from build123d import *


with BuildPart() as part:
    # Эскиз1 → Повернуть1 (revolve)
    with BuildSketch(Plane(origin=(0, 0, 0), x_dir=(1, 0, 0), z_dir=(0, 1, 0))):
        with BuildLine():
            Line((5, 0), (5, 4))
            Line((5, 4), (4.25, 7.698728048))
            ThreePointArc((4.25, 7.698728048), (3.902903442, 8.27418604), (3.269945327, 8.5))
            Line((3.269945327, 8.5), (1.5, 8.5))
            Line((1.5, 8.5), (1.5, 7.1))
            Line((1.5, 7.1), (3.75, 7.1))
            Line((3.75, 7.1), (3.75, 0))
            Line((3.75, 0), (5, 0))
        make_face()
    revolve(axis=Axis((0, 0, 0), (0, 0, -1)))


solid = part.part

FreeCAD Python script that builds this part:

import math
import FreeCAD as App
import Part
import Sketcher
from FreeCAD import Vector
Q = App.Units.Quantity

doc = App.newDocument("Part")
body = doc.addObject("PartDesign::Body", "Body")

# Sketch on XZ plane
sketch1 = body.newObject("Sketcher::SketchObject", "Sketch")
sketch1.AttachmentSupport = (doc.getObject("XZ_Plane"), [""])
sketch1.MapMode = "FlatFace"
sketch1.addGeometry([
    Part.LineSegment(Vector(5, 0, 0), Vector(5, -4, 0)),  # 0
    Part.LineSegment(Vector(5, -4, 0), Vector(4.2, -7.7, 0)),  # 1
    Part.ArcOfCircle(Part.Circle(Vector(3.3, -7.5, 0), Vector(0, 0, 1), 1), math.radians(-90), math.radians(-11)),  # 2
    Part.LineSegment(Vector(3.3, -8.5, 0), Vector(1.5, -8.5, 0)),  # 3
    Part.LineSegment(Vector(1.5, -8.5, 0), Vector(1.5, -7.1, 0)),  # 4
    Part.LineSegment(Vector(1.5, -7.1, 0), Vector(3.8, -7.1, 0)),  # 5
    Part.LineSegment(Vector(3.8, -7.1, 0), Vector(3.8, 0, 0)),  # 6
    Part.LineSegment(Vector(3.8, 0, 0), Vector(5, 0, 0)),  # 7
], False)
sketch1.addConstraint([
    Sketcher.Constraint("Coincident", 0, 2, 1, 1),
    Sketcher.Constraint("Tangent", 1, 2, 2, 2),
    Sketcher.Constraint("Tangent", 2, 1, 3, 1),
    Sketcher.Constraint("Coincident", 3, 2, 4, 1),
    Sketcher.Constraint("Coincident", 4, 2, 5, 1),
    Sketcher.Constraint("Coincident", 5, 2, 6, 1),
    Sketcher.Constraint("Coincident", 6, 2, 7, 1),
    Sketcher.Constraint("Coincident", 7, 2, 0, 1),
    Sketcher.Constraint("Vertical", 0),
    Sketcher.Constraint("Horizontal", 3),
    Sketcher.Constraint("Vertical", 4),
    Sketcher.Constraint("Horizontal", 5),
    Sketcher.Constraint("Vertical", 6),
    Sketcher.Constraint("Horizontal", 7),
    Sketcher.Constraint("PointOnObject", 6, 2, -1),
    Sketcher.Constraint("Radius", 2, Q("1 mm")),
    Sketcher.Constraint("DistanceY", 0, 2, 0, 1, Q("4 mm")),
    Sketcher.Constraint("DistanceY", 4, 1, 4, 2, Q("1.4 mm")),
    Sketcher.Constraint("DistanceY", 6, 1, 6, 2, Q("7.1 mm")),
    Sketcher.Constraint("DistanceX", -1, 1, 0, 2, Q("5 mm")),
    Sketcher.Constraint("DistanceX", 5, 1, 5, 2, Q("2.25 mm")),
    Sketcher.Constraint("DistanceX", 7, 1, 7, 2, Q("1.25 mm")),
    Sketcher.Constraint("DistanceX", 5, 2, 1, 2, Q("0.5 mm")),
])
revolution = body.newObject("PartDesign::Revolution", "Revolution")
revolution.Profile = sketch1
revolution.ReferenceAxis = (sketch1, ["V_Axis"])
revolution.Angle = 360

doc.recompute()
